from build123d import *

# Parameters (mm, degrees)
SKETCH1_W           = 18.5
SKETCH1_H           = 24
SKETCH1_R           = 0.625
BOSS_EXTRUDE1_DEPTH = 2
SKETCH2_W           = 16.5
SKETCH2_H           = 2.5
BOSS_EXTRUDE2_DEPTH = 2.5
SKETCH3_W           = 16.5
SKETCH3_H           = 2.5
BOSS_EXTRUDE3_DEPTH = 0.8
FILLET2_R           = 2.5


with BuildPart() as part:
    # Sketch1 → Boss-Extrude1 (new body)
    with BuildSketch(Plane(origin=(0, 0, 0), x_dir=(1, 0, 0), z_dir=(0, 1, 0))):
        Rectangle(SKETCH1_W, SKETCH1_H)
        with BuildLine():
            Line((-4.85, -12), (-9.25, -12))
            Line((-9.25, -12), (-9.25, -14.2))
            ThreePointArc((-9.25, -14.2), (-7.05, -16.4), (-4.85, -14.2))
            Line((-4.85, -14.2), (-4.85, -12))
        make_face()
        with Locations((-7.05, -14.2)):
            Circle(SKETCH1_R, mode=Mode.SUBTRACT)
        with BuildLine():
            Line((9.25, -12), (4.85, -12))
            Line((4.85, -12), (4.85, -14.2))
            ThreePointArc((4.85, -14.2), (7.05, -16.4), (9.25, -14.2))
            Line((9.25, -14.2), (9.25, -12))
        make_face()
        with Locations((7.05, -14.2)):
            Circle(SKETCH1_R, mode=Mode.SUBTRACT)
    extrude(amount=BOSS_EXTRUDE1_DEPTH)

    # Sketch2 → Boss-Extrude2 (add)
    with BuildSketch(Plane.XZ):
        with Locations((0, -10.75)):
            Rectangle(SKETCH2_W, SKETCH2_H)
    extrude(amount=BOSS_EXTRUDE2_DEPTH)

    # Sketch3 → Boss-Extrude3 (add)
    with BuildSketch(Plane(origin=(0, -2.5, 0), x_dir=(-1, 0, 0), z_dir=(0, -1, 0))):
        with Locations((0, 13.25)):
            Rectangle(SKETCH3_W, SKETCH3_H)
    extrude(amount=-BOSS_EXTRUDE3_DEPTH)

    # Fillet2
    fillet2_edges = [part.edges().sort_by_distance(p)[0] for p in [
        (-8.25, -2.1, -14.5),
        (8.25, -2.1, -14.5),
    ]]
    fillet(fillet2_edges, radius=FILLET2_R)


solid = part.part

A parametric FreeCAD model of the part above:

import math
import FreeCAD as App
import Part
import Sketcher
from FreeCAD import Vector
Q = App.Units.Quantity


def edges_at(feature, points):
    """Names of the edges that pass closest to the given points."""
    edges = feature.Shape.Edges
    near = lambda p: min(range(len(edges)), key=lambda i: edges[i].distToShape(Part.Vertex(*p))[0])
    return sorted({f"Edge{near(p) + 1}" for p in points})

doc = App.newDocument("Part")
body = doc.addObject("PartDesign::Body", "Body")

# Sketch on XZ plane
sketch1 = body.newObject("Sketcher::SketchObject", "Sketch")
sketch1.AttachmentSupport = (doc.getObject("XZ_Plane"), [""])
sketch1.MapMode = "FlatFace"
sketch1.addGeometry([
    Part.LineSegment(Vector(-9.25, -12, 0), Vector(-9.25, 14.2, 0)),  # 0
    Part.ArcOfCircle(Part.Circle(Vector(-7.05, 14.2, 0), Vector(0, 0, 1), 2.2), math.radians(0), math.radians(180)),  # 1
    Part.LineSegment(Vector(-4.85, 14.2, 0), Vector(-4.85, 12, 0)),  # 2
    Part.LineSegment(Vector(-4.85, 12, 0), Vector(4.85, 12, 0)),  # 3
    Part.LineSegment(Vector(4.85, 12, 0), Vector(4.85, 14.2, 0)),  # 4
    Part.ArcOfCircle(Part.Circle(Vector(7.05, 14.2, 0), Vector(0, 0, 1), 2.2), math.radians(0), math.radians(180)),  # 5
    Part.LineSegment(Vector(9.25, 14.2, 0), Vector(9.25, -12, 0)),  # 6
    Part.LineSegment(Vector(9.25, -12, 0), Vector(-9.25, -12, 0)),  # 7
    Part.Circle(Vector(-7.05, 14.2, 0), Vector(0, 0, 1), 0.625),  # 8
    Part.Circle(Vector(7.05, 14.2, 0), Vector(0, 0, 1), 0.625),  # 9
], False)
sketch1.addConstraint([
    Sketcher.Constraint("Tangent", 0, 2, 1, 2),
    Sketcher.Constraint("Tangent", 1, 1, 2, 1),
    Sketcher.Constraint("Coincident", 2, 2, 3, 1),
    Sketcher.Constraint("Coincident", 3, 2, 4, 1),
    Sketcher.Constraint("Tangent", 4, 2, 5, 2),
    Sketcher.Constraint("Tangent", 5, 1, 6, 1),
    Sketcher.Constraint("Coincident", 6, 2, 7, 1),
    Sketcher.Constraint("Coincident", 7, 2, 0, 1),
    Sketcher.Constraint("Vertical", 0),
    Sketcher.Constraint("Vertical", 2),
    Sketcher.Constraint("Horizontal", 3),
    Sketcher.Constraint("Vertical", 4),
    Sketcher.Constraint("Vertical", 6),
    Sketcher.Constraint("Horizontal", 7),
    Sketcher.Constraint("Coincident", 8, 3, 1, 3),
    Sketcher.Constraint("Coincident", 9, 3, 5, 3),
    Sketcher.Constraint("Equal", 1, 5),
    Sketcher.Constraint("Equal", 8, 9),
    Sketcher.Constraint("Symmetric", 1, 3, 5, 3, -2),
    Sketcher.Constraint("Radius", 1, Q("2.2 mm")),
    Sketcher.Constraint("Diameter", 8, Q("1.25 mm")),
    Sketcher.Constraint("DistanceX", 3, 1, 3, 2, Q("9.7 mm")),
    Sketcher.Constraint("DistanceY", 0, 1, 0, 2, Q("26.2 mm")),
    Sketcher.Constraint("DistanceY", 2, 2, 2, 1, Q("2.2 mm")),
    Sketcher.Constraint("DistanceY", -1, 1, 2, 2, Q("12 mm")),
])
pad1 = body.newObject("PartDesign::Pad", "Pad")
pad1.Profile = sketch1
pad1.Length = 2
pad1.Reversed = True

# Sketch on XZ plane
sketch2 = body.newObject("Sketcher::SketchObject", "Sketch001")
sketch2.AttachmentSupport = (doc.getObject("XZ_Plane"), [""])
sketch2.MapMode = "FlatFace"
sketch2.addGeometry([
    Part.LineSegment(Vector(-8.25, -9.5, 0), Vector(-8.25, -12, 0)),
    Part.LineSegment(Vector(-8.25, -12, 0), Vector(8.25, -12, 0)),
    Part.LineSegment(Vector(8.25, -12, 0), Vector(8.25, -9.5, 0)),
    Part.LineSegment(Vector(8.25, -9.5, 0), Vector(-8.25, -9.5, 0)),
], False)
sketch2.addConstraint([
    Sketcher.Constraint("Coincident", 0, 2, 1, 1),
    Sketcher.Constraint("Coincident", 1, 2, 2, 1),
    Sketcher.Constraint("Coincident", 2, 2, 3, 1),
    Sketcher.Constraint("Coincident", 3, 2, 0, 1),
    Sketcher.Constraint("Vertical", 0),
    Sketcher.Constraint("Horizontal", 1),
    Sketcher.Constraint("Vertical", 2),
    Sketcher.Constraint("Horizontal", 3),
    Sketcher.Constraint("DistanceX", 1, 1, 1, 2, Q("16.5 mm")),
    Sketcher.Constraint("DistanceY", 0, 2, 0, 1, Q("2.5 mm")),
    Sketcher.Constraint("DistanceY", 0, 2, -1, 1, Q("12 mm")),
    Sketcher.Constraint("DistanceX", 0, 2, -1, 1, Q("8.25 mm")),
])
pad2 = body.newObject("PartDesign::Pad", "Pad001")
pad2.Profile = sketch2
pad2.Length = 2.5

# Sketch on XZ plane
sketch3 = body.newObject("Sketcher::SketchObject", "Sketch002")
sketch3.AttachmentSupport = (doc.getObject("XZ_Plane"), [""])
sketch3.MapMode = "FlatFace"
sketch3.AttachmentOffset = App.Placement(Vector(0, 0, 2.5), App.Rotation())
sketch3.addGeometry([
    Part.LineSegment(Vector(8.25, -14.5, 0), Vector(8.25, -12, 0)),
    Part.LineSegment(Vector(8.25, -12, 0), Vector(-8.25, -12, 0)),
    Part.LineSegment(Vector(-8.25, -12, 0), Vector(-8.25, -14.5, 0)),
    Part.LineSegment(Vector(-8.25, -14.5, 0), Vector(8.25, -14.5, 0)),
], False)
sketch3.addConstraint([
    Sketcher.Constraint("Coincident", 0, 2, 1, 1),
    Sketcher.Constraint("Coincident", 1, 2, 2, 1),
    Sketcher.Constraint("Coincident", 2, 2, 3, 1),
    Sketcher.Constraint("Coincident", 3, 2, 0, 1),
    Sketcher.Constraint("Vertical", 0),
    Sketcher.Constraint("Horizontal", 1),
    Sketcher.Constraint("Vertical", 2),
    Sketcher.Constraint("Horizontal", 3),
    Sketcher.Constraint("DistanceX", 1, 2, 1, 1, Q("16.5 mm")),
    Sketcher.Constraint("DistanceY", 0, 1, 0, 2, Q("2.5 mm")),
    Sketcher.Constraint("DistanceY", 0, 2, -1, 1, Q("12 mm")),
    Sketcher.Constraint("DistanceX", -1, 1, 0, 2, Q("8.25 mm")),
])
pad3 = body.newObject("PartDesign::Pad", "Pad002")
pad3.Profile = sketch3
pad3.Length = 0.8
pad3.Reversed = True
doc.recompute()

fillet = body.newObject("PartDesign::Fillet", "Fillet")
fillet.Base = (pad3, edges_at(pad3, [(-8.25, -2.1, -14.5), (8.25, -2.1, -14.5)]))
fillet.Radius = 2.5

doc.recompute()
